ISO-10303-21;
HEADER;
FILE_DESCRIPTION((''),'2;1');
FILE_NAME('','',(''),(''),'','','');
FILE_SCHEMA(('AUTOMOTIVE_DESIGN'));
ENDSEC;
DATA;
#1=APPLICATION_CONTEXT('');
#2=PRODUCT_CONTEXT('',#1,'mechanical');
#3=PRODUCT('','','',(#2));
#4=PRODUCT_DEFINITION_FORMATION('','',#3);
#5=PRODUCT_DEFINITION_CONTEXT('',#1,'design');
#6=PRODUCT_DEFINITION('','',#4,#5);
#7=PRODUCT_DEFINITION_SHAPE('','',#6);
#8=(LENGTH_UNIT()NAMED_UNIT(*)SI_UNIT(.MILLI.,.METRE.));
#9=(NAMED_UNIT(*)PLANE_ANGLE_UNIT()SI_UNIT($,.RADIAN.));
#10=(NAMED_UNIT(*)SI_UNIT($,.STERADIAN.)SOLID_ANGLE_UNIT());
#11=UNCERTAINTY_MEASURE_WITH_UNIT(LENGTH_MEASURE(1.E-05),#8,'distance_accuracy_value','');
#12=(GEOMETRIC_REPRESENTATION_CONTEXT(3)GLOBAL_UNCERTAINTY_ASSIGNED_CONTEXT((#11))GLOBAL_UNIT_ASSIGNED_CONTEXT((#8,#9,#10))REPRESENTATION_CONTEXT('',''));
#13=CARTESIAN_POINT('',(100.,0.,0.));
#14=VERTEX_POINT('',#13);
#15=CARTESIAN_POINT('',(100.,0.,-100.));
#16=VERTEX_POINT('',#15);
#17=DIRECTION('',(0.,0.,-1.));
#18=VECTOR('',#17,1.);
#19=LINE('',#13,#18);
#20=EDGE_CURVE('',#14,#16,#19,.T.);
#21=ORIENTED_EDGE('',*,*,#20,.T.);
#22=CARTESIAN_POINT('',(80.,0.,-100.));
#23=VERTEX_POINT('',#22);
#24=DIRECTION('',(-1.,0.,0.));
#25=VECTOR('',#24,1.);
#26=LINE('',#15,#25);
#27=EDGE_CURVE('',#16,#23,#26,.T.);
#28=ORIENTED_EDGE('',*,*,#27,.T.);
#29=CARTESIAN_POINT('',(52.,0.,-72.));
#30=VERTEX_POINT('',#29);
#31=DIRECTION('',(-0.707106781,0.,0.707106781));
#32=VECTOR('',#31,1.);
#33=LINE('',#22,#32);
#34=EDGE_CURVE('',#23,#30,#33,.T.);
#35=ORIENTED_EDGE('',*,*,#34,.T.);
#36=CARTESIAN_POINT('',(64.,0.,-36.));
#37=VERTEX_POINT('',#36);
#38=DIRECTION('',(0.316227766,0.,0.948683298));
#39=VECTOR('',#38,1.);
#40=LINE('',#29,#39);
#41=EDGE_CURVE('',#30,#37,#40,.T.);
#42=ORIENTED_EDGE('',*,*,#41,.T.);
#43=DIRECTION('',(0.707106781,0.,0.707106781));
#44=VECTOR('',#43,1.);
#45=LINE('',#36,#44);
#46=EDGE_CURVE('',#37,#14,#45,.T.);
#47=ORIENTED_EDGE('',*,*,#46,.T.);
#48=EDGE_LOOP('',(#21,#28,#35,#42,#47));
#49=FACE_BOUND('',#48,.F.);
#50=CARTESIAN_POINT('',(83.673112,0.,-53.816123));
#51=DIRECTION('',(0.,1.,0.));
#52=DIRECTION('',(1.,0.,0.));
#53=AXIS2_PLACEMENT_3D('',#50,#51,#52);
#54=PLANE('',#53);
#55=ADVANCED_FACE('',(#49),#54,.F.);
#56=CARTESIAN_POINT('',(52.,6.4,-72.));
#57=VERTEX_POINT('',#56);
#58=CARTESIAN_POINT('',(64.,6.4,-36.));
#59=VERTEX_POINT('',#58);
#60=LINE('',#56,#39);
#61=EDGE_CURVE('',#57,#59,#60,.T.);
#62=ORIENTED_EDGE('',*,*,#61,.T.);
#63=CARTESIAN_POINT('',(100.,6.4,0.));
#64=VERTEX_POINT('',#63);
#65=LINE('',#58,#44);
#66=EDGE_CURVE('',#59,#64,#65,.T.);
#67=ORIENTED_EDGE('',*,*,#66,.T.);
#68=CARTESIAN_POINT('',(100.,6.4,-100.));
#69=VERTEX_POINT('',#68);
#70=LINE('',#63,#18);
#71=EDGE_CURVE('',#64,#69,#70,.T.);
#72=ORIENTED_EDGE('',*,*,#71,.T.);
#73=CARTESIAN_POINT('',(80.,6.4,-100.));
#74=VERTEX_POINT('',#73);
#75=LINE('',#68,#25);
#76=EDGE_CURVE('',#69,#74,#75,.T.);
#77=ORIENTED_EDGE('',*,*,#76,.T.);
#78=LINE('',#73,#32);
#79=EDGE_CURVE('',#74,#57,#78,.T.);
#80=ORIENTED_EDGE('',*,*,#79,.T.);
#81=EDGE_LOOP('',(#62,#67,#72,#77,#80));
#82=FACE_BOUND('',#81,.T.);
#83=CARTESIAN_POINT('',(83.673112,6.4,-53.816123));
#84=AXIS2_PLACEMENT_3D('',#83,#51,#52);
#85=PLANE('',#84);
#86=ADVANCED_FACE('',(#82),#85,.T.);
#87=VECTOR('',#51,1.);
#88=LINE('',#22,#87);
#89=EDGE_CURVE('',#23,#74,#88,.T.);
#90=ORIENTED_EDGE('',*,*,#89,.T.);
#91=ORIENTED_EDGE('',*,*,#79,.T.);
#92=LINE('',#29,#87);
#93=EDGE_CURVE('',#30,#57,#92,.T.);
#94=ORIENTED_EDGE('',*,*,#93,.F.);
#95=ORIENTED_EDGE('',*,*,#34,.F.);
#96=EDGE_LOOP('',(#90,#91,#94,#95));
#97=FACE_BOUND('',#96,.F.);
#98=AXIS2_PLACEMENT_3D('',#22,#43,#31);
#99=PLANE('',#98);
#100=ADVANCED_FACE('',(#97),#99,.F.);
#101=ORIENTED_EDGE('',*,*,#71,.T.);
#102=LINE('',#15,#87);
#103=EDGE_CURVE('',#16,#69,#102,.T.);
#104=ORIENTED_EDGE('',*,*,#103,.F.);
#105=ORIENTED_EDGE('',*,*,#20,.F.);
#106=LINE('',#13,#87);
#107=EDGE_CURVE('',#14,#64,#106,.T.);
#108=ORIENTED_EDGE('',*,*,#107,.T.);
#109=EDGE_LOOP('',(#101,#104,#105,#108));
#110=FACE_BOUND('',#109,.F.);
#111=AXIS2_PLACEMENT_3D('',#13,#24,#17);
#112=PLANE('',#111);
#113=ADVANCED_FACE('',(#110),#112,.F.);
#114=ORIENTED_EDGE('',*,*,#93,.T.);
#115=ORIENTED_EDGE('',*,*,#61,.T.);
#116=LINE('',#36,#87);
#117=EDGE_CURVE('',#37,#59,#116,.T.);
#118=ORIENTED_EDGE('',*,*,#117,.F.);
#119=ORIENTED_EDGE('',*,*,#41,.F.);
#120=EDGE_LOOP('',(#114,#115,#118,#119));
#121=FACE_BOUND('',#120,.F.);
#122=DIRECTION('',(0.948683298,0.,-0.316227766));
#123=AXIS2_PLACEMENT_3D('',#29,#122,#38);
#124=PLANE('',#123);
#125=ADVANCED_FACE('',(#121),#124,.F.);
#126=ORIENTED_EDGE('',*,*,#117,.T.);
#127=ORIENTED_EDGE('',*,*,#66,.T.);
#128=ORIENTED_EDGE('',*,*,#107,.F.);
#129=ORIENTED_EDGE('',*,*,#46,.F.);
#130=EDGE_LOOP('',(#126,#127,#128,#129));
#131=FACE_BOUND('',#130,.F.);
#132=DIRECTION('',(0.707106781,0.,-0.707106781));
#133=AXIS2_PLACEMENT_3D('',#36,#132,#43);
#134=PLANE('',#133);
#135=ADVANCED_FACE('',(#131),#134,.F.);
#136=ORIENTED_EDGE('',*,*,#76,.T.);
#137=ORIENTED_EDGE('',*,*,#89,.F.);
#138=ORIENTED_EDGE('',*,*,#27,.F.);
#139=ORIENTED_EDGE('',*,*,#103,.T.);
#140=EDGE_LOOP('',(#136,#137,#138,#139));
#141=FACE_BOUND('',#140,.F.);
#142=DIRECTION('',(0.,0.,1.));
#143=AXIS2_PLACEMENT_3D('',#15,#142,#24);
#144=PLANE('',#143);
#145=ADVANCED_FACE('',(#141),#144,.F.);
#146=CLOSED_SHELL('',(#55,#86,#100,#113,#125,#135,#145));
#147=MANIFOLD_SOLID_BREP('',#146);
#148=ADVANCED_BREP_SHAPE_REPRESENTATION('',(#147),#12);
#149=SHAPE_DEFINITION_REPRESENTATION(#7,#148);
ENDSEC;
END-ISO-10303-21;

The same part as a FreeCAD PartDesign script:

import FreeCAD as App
import Part
import Sketcher

V = App.Vector
Q = App.Units.Quantity


def add_polygon(sketch, points):
    """Adds a closed chain of lines whose ends are joined by coincident constraints."""
    first, n = sketch.GeometryCount, len(points)
    for a, b in zip(points, points[1:] + points[:1]):
        sketch.addGeometry(Part.LineSegment(App.Vector(*a, 0), App.Vector(*b, 0)), False)
    for i in range(n):
        sketch.addConstraint(Sketcher.Constraint("Coincident", first + i, 2, first + (i + 1) % n, 1))

doc = App.newDocument("Part")
params = doc.addObject("Spreadsheet::Sheet", "Params")
for row, (alias, value) in enumerate([
    ("sketch1_width", "20 mm"),
    ("sketch1_height", "100 mm"),
    ("pad1_length", "6.4 mm"),
], start=1):
    params.set(f"A{row}", alias)
    params.set(f"B{row}", "=" + value)
    params.setAlias(f"B{row}", alias)

body = doc.addObject("PartDesign::Body", "Body")

sketch1 = doc.addObject("Sketcher::SketchObject", "Sketch")
body.addObject(sketch1)
sketch1.AttachmentSupport = (doc.XZ_Plane, [""])
sketch1.MapMode = "FlatFace"
add_polygon(sketch1, [(80, -100), (52, -72), (64, -36), (100, 0), (100, -100)])
sketch1.addConstraint(Sketcher.Constraint("Vertical", 3))
sketch1.addConstraint(Sketcher.Constraint("Horizontal", 4))
sketch1.addConstraint(Sketcher.Constraint("PointOnObject", 2, 2, -1))
sketch1.addConstraint(Sketcher.Constraint("Perpendicular", 0, 2))
sketch1.addConstraint(Sketcher.Constraint("DistanceX", 4, 2, 4, 1, 20.0))
sketch1.addConstraint(Sketcher.Constraint("DistanceY", 3, 2, 3, 1, 100.0))
sketch1.addConstraint(Sketcher.Constraint("Angle", 0, Q("135 deg")))
sketch1.addConstraint(Sketcher.Constraint("DistanceX", -1, 1, 0, 2, 52.0))
sketch1.addConstraint(Sketcher.Constraint("DistanceY", 0, 2, -1, 1, 72.0))
sketch1.addConstraint(Sketcher.Constraint("DistanceX", -1, 1, 1, 2, 64.0))
sketch1.setExpression("Constraints[9]", "Params.sketch1_width")
sketch1.setExpression("Constraints[10]", "Params.sketch1_height")
pad1 = doc.addObject("PartDesign::Pad", "Pad")
body.addObject(pad1)
pad1.Profile = sketch1
pad1.setExpression("Length", "Params.pad1_length")
pad1.Reversed = True

doc.recompute()
